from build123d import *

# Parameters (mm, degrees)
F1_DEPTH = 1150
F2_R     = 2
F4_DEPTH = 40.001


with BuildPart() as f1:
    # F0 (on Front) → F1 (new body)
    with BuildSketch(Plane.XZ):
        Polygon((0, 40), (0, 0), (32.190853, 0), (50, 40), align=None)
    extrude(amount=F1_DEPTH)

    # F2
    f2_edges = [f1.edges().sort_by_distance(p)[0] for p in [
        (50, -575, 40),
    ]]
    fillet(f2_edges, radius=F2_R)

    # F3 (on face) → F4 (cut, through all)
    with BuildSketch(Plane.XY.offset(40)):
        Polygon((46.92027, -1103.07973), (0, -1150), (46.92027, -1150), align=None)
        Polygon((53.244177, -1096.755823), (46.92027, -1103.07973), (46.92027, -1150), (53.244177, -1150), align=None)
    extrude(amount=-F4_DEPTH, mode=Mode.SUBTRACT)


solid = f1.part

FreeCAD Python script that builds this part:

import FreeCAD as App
import Part
import Sketcher

V = App.Vector
Q = App.Units.Quantity


def edges_at(feature, points):
    """Names of the edges that pass closest to the given points."""
    edges = feature.Shape.Edges
    near = lambda p: min(range(len(edges)), key=lambda i: edges[i].distToShape(Part.Vertex(*p))[0])
    return sorted({f"Edge{near(p) + 1}" for p in points})

doc = App.newDocument("Part")
body = doc.addObject("PartDesign::Body", "Body")

sketch1 = doc.addObject("Sketcher::SketchObject", "Sketch")
body.addObject(sketch1)
sketch1.AttachmentSupport = (doc.XZ_Plane, [""])
sketch1.MapMode = "FlatFace"
sketch1.addGeometry(Part.LineSegment(V(0, 40, 0), V(0, 0, 0)), False)
sketch1.addGeometry(Part.LineSegment(V(0, 0, 0), V(32, 0, 0)), False)
sketch1.addGeometry(Part.LineSegment(V(32, 0, 0), V(50, 40, 0)), False)
sketch1.addGeometry(Part.LineSegment(V(50, 40, 0), V(0, 40, 0)), False)
sketch1.addConstraint(Sketcher.Constraint("Coincident", 0, 2, 1, 1))
sketch1.addConstraint(Sketcher.Constraint("Coincident", 1, 2, 2, 1))
sketch1.addConstraint(Sketcher.Constraint("Coincident", 2, 2, 3, 1))
sketch1.addConstraint(Sketcher.Constraint("Coincident", 3, 2, 0, 1))
sketch1.addConstraint(Sketcher.Constraint("Vertical", 0))
sketch1.addConstraint(Sketcher.Constraint("Horizontal", 1))
sketch1.addConstraint(Sketcher.Constraint("Horizontal", 3))
sketch1.addConstraint(Sketcher.Constraint("Coincident", 0, 2, -1, 1))
sketch1.addConstraint(Sketcher.Constraint("DistanceX", 3, 2, 3, 1, 50.0))
sketch1.addConstraint(Sketcher.Constraint("DistanceY", 0, 2, 0, 1, 40.0))
sketch1.addConstraint(Sketcher.Constraint("Angle", 2, Q("66 deg")))
pad1 = doc.addObject("PartDesign::Pad", "Pad")
body.addObject(pad1)
pad1.Profile = sketch1
pad1.Length = 1150
doc.recompute()

fillet = doc.addObject("PartDesign::Fillet", "Fillet")
body.addObject(fillet)
fillet.Base = (pad1, edges_at(pad1, [(50, -575, 40)]))
fillet.Radius = 2

sketch2 = doc.addObject("Sketcher::SketchObject", "Sketch001")
body.addObject(sketch2)
sketch2.AttachmentSupport = (doc.XY_Plane, [""])
sketch2.MapMode = "FlatFace"
sketch2.AttachmentOffset = App.Placement(V(0, 0, 40), App.Rotation())
sketch2.addGeometry(Part.LineSegment(V(0, -1150, 0), V(53, -1150, 0)), False)
sketch2.addGeometry(Part.LineSegment(V(53, -1150, 0), V(53, -1097, 0)), False)
sketch2.addGeometry(Part.LineSegment(V(53, -1097, 0), V(0, -1150, 0)), False)
sketch2.addConstraint(Sketcher.Constraint("Coincident", 0, 2, 1, 1))
sketch2.addConstraint(Sketcher.Constraint("Coincident", 1, 2, 2, 1))
sketch2.addConstraint(Sketcher.Constraint("Coincident", 2, 2, 0, 1))
sketch2.addConstraint(Sketcher.Constraint("Horizontal", 0))
sketch2.addConstraint(Sketcher.Constraint("Vertical", 1))
sketch2.addConstraint(Sketcher.Constraint("PointOnObject", 2, 2, -2))
sketch2.addConstraint(Sketcher.Constraint("Equal", 0, 1))
sketch2.addConstraint(Sketcher.Constraint("DistanceY", 0, 2, -1, 1, 1150.0))
sketch2.addConstraint(Sketcher.Constraint("DistanceX", 0, 1, 0, 2, 53.244177))
pocket1 = doc.addObject("PartDesign::Pocket", "Pocket")
body.addObject(pocket1)
pocket1.Profile = sketch2
pocket1.Type = "ThroughAll"

doc.recompute()
